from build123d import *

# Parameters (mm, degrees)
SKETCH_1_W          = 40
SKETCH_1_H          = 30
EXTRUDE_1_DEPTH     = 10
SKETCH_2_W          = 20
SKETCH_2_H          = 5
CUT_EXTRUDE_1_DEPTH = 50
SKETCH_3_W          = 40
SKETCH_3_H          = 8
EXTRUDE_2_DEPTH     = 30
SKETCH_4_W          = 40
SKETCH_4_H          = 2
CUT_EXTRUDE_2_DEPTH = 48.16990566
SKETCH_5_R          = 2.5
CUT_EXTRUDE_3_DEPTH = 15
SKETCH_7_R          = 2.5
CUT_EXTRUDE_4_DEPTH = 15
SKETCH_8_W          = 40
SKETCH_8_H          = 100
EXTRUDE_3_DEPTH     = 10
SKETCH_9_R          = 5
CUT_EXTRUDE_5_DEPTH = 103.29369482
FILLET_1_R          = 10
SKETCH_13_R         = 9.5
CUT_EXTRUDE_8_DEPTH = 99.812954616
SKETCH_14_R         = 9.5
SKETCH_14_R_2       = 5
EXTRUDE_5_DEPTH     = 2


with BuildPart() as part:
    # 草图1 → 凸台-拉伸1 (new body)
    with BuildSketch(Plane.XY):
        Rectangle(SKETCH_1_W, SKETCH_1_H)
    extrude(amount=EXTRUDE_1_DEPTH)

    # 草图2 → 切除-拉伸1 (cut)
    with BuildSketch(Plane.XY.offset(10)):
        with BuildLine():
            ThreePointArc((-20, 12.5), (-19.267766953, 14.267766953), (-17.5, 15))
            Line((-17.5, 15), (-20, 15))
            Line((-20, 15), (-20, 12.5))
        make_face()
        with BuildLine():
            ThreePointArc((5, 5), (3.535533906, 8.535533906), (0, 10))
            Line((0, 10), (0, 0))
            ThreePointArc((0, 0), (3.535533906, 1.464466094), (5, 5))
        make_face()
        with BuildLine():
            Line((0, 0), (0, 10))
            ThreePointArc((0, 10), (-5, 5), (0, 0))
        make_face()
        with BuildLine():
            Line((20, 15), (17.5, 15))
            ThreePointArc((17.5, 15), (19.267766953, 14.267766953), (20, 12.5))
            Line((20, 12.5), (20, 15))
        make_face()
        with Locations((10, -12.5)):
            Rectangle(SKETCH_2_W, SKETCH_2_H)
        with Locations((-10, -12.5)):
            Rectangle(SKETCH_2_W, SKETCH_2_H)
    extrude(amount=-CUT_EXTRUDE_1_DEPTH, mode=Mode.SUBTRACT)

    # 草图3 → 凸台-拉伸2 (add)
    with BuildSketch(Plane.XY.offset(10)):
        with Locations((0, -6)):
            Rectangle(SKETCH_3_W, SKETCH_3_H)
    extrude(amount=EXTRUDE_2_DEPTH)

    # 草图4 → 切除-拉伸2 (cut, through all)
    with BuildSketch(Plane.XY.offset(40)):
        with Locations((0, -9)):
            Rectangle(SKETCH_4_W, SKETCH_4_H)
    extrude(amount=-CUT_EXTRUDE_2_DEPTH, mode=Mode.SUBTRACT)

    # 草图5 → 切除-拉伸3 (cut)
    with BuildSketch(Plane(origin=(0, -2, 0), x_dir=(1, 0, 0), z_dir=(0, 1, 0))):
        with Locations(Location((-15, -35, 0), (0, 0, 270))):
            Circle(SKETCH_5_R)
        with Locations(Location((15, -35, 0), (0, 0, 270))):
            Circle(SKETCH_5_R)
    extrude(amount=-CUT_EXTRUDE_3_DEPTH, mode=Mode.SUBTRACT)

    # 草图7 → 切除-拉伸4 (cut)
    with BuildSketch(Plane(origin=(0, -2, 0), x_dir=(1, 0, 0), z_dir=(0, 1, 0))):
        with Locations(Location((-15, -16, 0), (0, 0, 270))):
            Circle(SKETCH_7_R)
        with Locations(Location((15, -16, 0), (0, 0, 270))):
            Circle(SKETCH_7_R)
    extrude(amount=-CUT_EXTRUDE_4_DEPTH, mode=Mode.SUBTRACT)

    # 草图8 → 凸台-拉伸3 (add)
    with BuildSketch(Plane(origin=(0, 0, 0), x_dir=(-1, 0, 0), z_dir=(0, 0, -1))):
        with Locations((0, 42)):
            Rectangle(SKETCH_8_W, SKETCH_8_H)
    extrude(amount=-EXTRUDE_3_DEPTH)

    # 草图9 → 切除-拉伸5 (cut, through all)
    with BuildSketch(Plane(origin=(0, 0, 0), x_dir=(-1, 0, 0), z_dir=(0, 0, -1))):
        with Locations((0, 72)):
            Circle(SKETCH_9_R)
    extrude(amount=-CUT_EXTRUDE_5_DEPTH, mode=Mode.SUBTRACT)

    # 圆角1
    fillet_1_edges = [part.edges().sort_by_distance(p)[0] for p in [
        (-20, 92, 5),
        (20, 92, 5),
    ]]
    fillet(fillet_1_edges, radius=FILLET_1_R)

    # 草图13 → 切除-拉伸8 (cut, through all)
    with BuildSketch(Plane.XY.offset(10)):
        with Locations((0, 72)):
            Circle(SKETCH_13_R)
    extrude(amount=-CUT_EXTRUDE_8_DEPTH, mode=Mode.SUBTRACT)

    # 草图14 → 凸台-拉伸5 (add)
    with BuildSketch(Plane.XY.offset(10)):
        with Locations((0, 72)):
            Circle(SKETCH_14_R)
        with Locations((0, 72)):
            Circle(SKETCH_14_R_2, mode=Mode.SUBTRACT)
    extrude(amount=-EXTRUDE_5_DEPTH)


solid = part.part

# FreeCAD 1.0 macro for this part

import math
import FreeCAD as App
import Part
import Sketcher


def edges_at(feature, points):
    """Names of the edges that pass closest to the given points."""
    edges = feature.Shape.Edges
    near = lambda p: min(range(len(edges)), key=lambda i: edges[i].distToShape(Part.Vertex(*p))[0])
    return sorted({f"Edge{near(p) + 1}" for p in points})

doc = App.newDocument("Part")
params = doc.addObject("Spreadsheet::Sheet", "Params")
for row, (alias, value) in enumerate([
    ("sketch1_width", "40 mm"),
    ("sketch1_height", "30 mm"),
    ("pad1_length", "10 mm"),
    ("sketch2_radius", "5 mm"),
    ("sketch2_radius2", "2.5 mm"),
    ("sketch2_width", "40 mm"),
    ("sketch2_height", "5 mm"),
    ("pocket1_length", "50 mm"),
    ("sketch3_width", "40 mm"),
    ("sketch3_height", "8 mm"),
    ("pad2_length", "30 mm"),
    ("sketch4_width", "40 mm"),
    ("sketch4_height", "2 mm"),
    ("sketch5_diameter", "5 mm"),
    ("pocket3_length", "15 mm"),
    ("sketch6_diameter", "5 mm"),
    ("pocket4_length", "15 mm"),
    ("sketch7_width", "40 mm"),
    ("sketch7_height", "100 mm"),
    ("pad3_length", "10 mm"),
    ("sketch8_diameter", "10 mm"),
    ("fillet_radius", "10 mm"),
    ("sketch9_diameter", "19 mm"),
    ("sketch10_diameter", "19 mm"),
    ("sketch10_diameter2", "10 mm"),
    ("pad4_length", "2 mm"),
], start=1):
    params.set(f"A{row}", alias)
    params.set(f"B{row}", "=" + value)
    params.setAlias(f"B{row}", alias)

body = doc.addObject("PartDesign::Body", "Body")

# Sketch on XY plane
sketch1 = body.newObject("Sketcher::SketchObject", "Sketch")
sketch1.AttachmentSupport = (doc.getObject("XY_Plane"), [""])
sketch1.MapMode = "FlatFace"
sketch1.addGeometry([
    Part.LineSegment(App.Vector(-20, 15, 0), App.Vector(-20, -15, 0)),
    Part.LineSegment(App.Vector(-20, -15, 0), App.Vector(20, -15, 0)),
    Part.LineSegment(App.Vector(20, -15, 0), App.Vector(20, 15, 0)),
    Part.LineSegment(App.Vector(20, 15, 0), App.Vector(-20, 15, 0)),
], False)
sketch1.addConstraint([
    Sketcher.Constraint("Coincident", 0, 2, 1, 1),
    Sketcher.Constraint("Coincident", 1, 2, 2, 1),
    Sketcher.Constraint("Coincident", 2, 2, 3, 1),
    Sketcher.Constraint("Coincident", 3, 2, 0, 1),
    Sketcher.Constraint("Vertical", 0),
    Sketcher.Constraint("Horizontal", 1),
    Sketcher.Constraint("Vertical", 2),
    Sketcher.Constraint("Horizontal", 3),
    Sketcher.Constraint("Symmetric", 0, 2, 2, 2, -1, 1),
    Sketcher.Constraint("DistanceX", 1, 1, 1, 2, 40.0),
    Sketcher.Constraint("DistanceY", 0, 2, 0, 1, 30.0),
])
sketch1.setExpression("Constraints[9]", "Params.sketch1_width")
sketch1.setExpression("Constraints[10]", "Params.sketch1_height")
pad1 = body.newObject("PartDesign::Pad", "Pad")
pad1.Profile = sketch1
pad1.setExpression("Length", "Params.pad1_length")

# Sketch on XY plane
sketch2 = body.newObject("Sketcher::SketchObject", "Sketch001")
sketch2.AttachmentSupport = (doc.getObject("XY_Plane"), [""])
sketch2.MapMode = "FlatFace"
sketch2.AttachmentOffset = App.Placement(App.Vector(0, 0, 10), App.Rotation())
sketch2.addGeometry([
    Part.ArcOfCircle(Part.Circle(App.Vector(-17.5, 12.5, 0), App.Vector(0, 0, 1), 2.5), math.radians(90), math.radians(180)),  # 0
    Part.LineSegment(App.Vector(-17.5, 15, 0), App.Vector(-20, 15, 0)),  # 1
    Part.LineSegment(App.Vector(-20, 15, 0), App.Vector(-20, 12.5, 0)),  # 2
    Part.ArcOfCircle(Part.Circle(App.Vector(0, 5, 0), App.Vector(0, 0, 1), 5), math.radians(0), math.radians(90)),  # 3
    Part.ArcOfCircle(Part.Circle(App.Vector(0, 5, 0), App.Vector(0, 0, 1), 5), math.radians(90), math.radians(270)),  # 4
    Part.ArcOfCircle(Part.Circle(App.Vector(0, 5, 0), App.Vector(0, 0, 1), 5), math.radians(-90), math.radians(0)),  # 5
    Part.LineSegment(App.Vector(20, 15, 0), App.Vector(17.5, 15, 0)),  # 6
    Part.ArcOfCircle(Part.Circle(App.Vector(17.5, 12.5, 0), App.Vector(0, 0, 1), 2.5), math.radians(0), math.radians(90)),  # 7
    Part.LineSegment(App.Vector(20, 12.5, 0), App.Vector(20, 15, 0)),  # 8
    Part.LineSegment(App.Vector(20, -15, 0), App.Vector(20, -10, 0)),  # 9
    Part.LineSegment(App.Vector(20, -10, 0), App.Vector(-20, -10, 0)),  # 10
    Part.LineSegment(App.Vector(-20, -10, 0), App.Vector(-20, -15, 0)),  # 11
    Part.LineSegment(App.Vector(-20, -15, 0), App.Vector(20, -15, 0)),  # 12
], False)
sketch2.addConstraint([
    Sketcher.Constraint("Tangent", 0, 1, 1, 1),
    Sketcher.Constraint("Coincident", 1, 2, 2, 1),
    Sketcher.Constraint("Tangent", 2, 2, 0, 2),
    Sketcher.Constraint("Tangent", 3, 2, 4, 1),
    Sketcher.Constraint("Tangent", 4, 2, 5, 1),
    Sketcher.Constraint("Tangent", 5, 2, 3, 1),
    Sketcher.Constraint("Tangent", 6, 2, 7, 2),
    Sketcher.Constraint("Tangent", 7, 1, 8, 1),
    Sketcher.Constraint("Coincident", 8, 2, 6, 1),
    Sketcher.Constraint("Coincident", 9, 2, 10, 1),
    Sketcher.Constraint("Coincident", 10, 2, 11, 1),
    Sketcher.Constraint("Coincident", 11, 2, 12, 1),
    Sketcher.Constraint("Coincident", 12, 2, 9, 1),
    Sketcher.Constraint("Horizontal", 1),
    Sketcher.Constraint("Vertical", 2),
    Sketcher.Constraint("Horizontal", 6),
    Sketcher.Constraint("Vertical", 8),
    Sketcher.Constraint("Vertical", 9),
    Sketcher.Constraint("Horizontal", 10),
    Sketcher.Constraint("Vertical", 11),
    Sketcher.Constraint("Horizontal", 12),
    Sketcher.Constraint("Coincident", 4, 2, -1, 1),
    Sketcher.Constraint("Equal", 0, 7),
    Sketcher.Constraint("Symmetric", 8, 2, 11, 2, -1, 1),
    Sketcher.Constraint("Symmetric", 1, 2, 12, 2, -1, 1),
    Sketcher.Constraint("PointOnObject", 3, 3, -2),
    Sketcher.Constraint("PointOnObject", 3, 2, -2),
    Sketcher.Constraint("Horizontal", 4, 3, 5, 2),
    Sketcher.Constraint("Vertical", 8, 2, 9, 2),
    Sketcher.Constraint("Radius", 3, 5.0),
    Sketcher.Constraint("Radius", 0, 2.5),
    Sketcher.Constraint("DistanceX", 10, 2, 10, 1, 40.0),
    Sketcher.Constraint("DistanceY", 9, 1, 9, 2, 5.0),
    Sketcher.Constraint("DistanceY", -1, 1, 0, 1, 15.0),
])
sketch2.setExpression("Constraints[29]", "Params.sketch2_radius")
sketch2.setExpression("Constraints[30]", "Params.sketch2_radius2")
sketch2.setExpression("Constraints[31]", "Params.sketch2_width")
sketch2.setExpression("Constraints[32]", "Params.sketch2_height")
pocket1 = body.newObject("PartDesign::Pocket", "Pocket")
pocket1.Profile = sketch2
pocket1.setExpression("Length", "Params.pocket1_length")

# Sketch on XY plane
sketch3 = body.newObject("Sketcher::SketchObject", "Sketch002")
sketch3.AttachmentSupport = (doc.getObject("XY_Plane"), [""])
sketch3.MapMode = "FlatFace"
sketch3.AttachmentOffset = App.Placement(App.Vector(0, 0, 10), App.Rotation())
sketch3.addGeometry([
    Part.LineSegment(App.Vector(-20, -2, 0), App.Vector(-20, -10, 0)),
    Part.LineSegment(App.Vector(-20, -10, 0), App.Vector(20, -10, 0)),
    Part.LineSegment(App.Vector(20, -10, 0), App.Vector(20, -2, 0)),
    Part.LineSegment(App.Vector(20, -2, 0), App.Vector(-20, -2, 0)),
], False)
sketch3.addConstraint([
    Sketcher.Constraint("Coincident", 0, 2, 1, 1),
    Sketcher.Constraint("Coincident", 1, 2, 2, 1),
    Sketcher.Constraint("Coincident", 2, 2, 3, 1),
    Sketcher.Constraint("Coincident", 3, 2, 0, 1),
    Sketcher.Constraint("Vertical", 0),
    Sketcher.Constraint("Horizontal", 1),
    Sketcher.Constraint("Vertical", 2),
    Sketcher.Constraint("Horizontal", 3),
    Sketcher.Constraint("DistanceX", 1, 1, 1, 2, 40.0),
    Sketcher.Constraint("DistanceY", 0, 2, 0, 1, 8.0),
    Sketcher.Constraint("DistanceX", 0, 2, -1, 1, 20.0),
    Sketcher.Constraint("DistanceY", 0, 2, -1, 1, 10.0),
])
sketch3.setExpression("Constraints[8]", "Params.sketch3_width")
sketch3.setExpression("Constraints[9]", "Params.sketch3_height")
pad2 = body.newObject("PartDesign::Pad", "Pad001")
pad2.Profile = sketch3
pad2.setExpression("Length", "Params.pad2_length")

# Sketch on XY plane
sketch4 = body.newObject("Sketcher::SketchObject", "Sketch003")
sketch4.AttachmentSupport = (doc.getObject("XY_Plane"), [""])
sketch4.MapMode = "FlatFace"
sketch4.AttachmentOffset = App.Placement(App.Vector(0, 0, 40), App.Rotation())
sketch4.addGeometry([
    Part.LineSegment(App.Vector(-20, -8, 0), App.Vector(-20, -10, 0)),
    Part.LineSegment(App.Vector(-20, -10, 0), App.Vector(20, -10, 0)),
    Part.LineSegment(App.Vector(20, -10, 0), App.Vector(20, -8, 0)),
    Part.LineSegment(App.Vector(20, -8, 0), App.Vector(-20, -8, 0)),
], False)
sketch4.addConstraint([
    Sketcher.Constraint("Coincident", 0, 2, 1, 1),
    Sketcher.Constraint("Coincident", 1, 2, 2, 1),
    Sketcher.Constraint("Coincident", 2, 2, 3, 1),
    Sketcher.Constraint("Coincident", 3, 2, 0, 1),
    Sketcher.Constraint("Vertical", 0),
    Sketcher.Constraint("Horizontal", 1),
    Sketcher.Constraint("Vertical", 2),
    Sketcher.Constraint("Horizontal", 3),
    Sketcher.Constraint("DistanceX", 1, 1, 1, 2, 40.0),
    Sketcher.Constraint("DistanceY", 0, 2, 0, 1, 2.0),
    Sketcher.Constraint("DistanceX", 0, 2, -1, 1, 20.0),
    Sketcher.Constraint("DistanceY", 0, 2, -1, 1, 10.0),
])
sketch4.setExpression("Constraints[8]", "Params.sketch4_width")
sketch4.setExpression("Constraints[9]", "Params.sketch4_height")
pocket2 = body.newObject("PartDesign::Pocket", "Pocket001")
pocket2.Profile = sketch4
pocket2.Type = "ThroughAll"

# Sketch on XZ plane
sketch5 = body.newObject("Sketcher::SketchObject", "Sketch004")
sketch5.AttachmentSupport = (doc.getObject("XZ_Plane"), [""])
sketch5.MapMode = "FlatFace"
sketch5.AttachmentOffset = App.Placement(App.Vector(0, 0, 2), App.Rotation())
sketch5.addGeometry([
    Part.Circle(App.Vector(-15, 35, 0), App.Vector(0, 0, 1), 2.5),
    Part.Circle(App.Vector(15, 35, 0), App.Vector(0, 0, 1), 2.5),
], False)
sketch5.addConstraint([
    Sketcher.Constraint("Equal", 0, 1),
    Sketcher.Constraint("Symmetric", 0, 3, 1, 3, -2),
    Sketcher.Constraint("Diameter", 0, 5.0),
    Sketcher.Constraint("DistanceX", 0, 3, -1, 1, 15.0),
    Sketcher.Constraint("DistanceY", -1, 1, 0, 3, 35.0),
])
sketch5.setExpression("Constraints[2]", "Params.sketch5_diameter")
pocket3 = body.newObject("PartDesign::Pocket", "Pocket002")
pocket3.Profile = sketch5
pocket3.setExpression("Length", "Params.pocket3_length")
pocket3.Reversed = True

# Sketch on XZ plane
sketch6 = body.newObject("Sketcher::SketchObject", "Sketch005")
sketch6.AttachmentSupport = (doc.getObject("XZ_Plane"), [""])
sketch6.MapMode = "FlatFace"
sketch6.AttachmentOffset = App.Placement(App.Vector(0, 0, 2), App.Rotation())
sketch6.addGeometry([
    Part.Circle(App.Vector(-15, 16, 0), App.Vector(0, 0, 1), 2.5),
    Part.Circle(App.Vector(15, 16, 0), App.Vector(0, 0, 1), 2.5),
], False)
sketch6.addConstraint([
    Sketcher.Constraint("Equal", 0, 1),
    Sketcher.Constraint("Symmetric", 0, 3, 1, 3, -2),
    Sketcher.Constraint("Diameter", 0, 5.0),
    Sketcher.Constraint("DistanceX", 0, 3, -1, 1, 15.0),
    Sketcher.Constraint("DistanceY", -1, 1, 0, 3, 16.0),
])
sketch6.setExpression("Constraints[2]", "Params.sketch6_diameter")
pocket4 = body.newObject("PartDesign::Pocket", "Pocket003")
pocket4.Profile = sketch6
pocket4.setExpression("Length", "Params.pocket4_length")
pocket4.Reversed = True

# Sketch on XY plane
sketch7 = body.newObject("Sketcher::SketchObject", "Sketch006")
sketch7.AttachmentSupport = (doc.getObject("XY_Plane"), [""])
sketch7.MapMode = "FlatFace"
sketch7.addGeometry([
    Part.LineSegment(App.Vector(20, 92, 0), App.Vector(20, -8, 0)),
    Part.LineSegment(App.Vector(20, -8, 0), App.Vector(-20, -8, 0)),
    Part.LineSegment(App.Vector(-20, -8, 0), App.Vector(-20, 92, 0)),
    Part.LineSegment(App.Vector(-20, 92, 0), App.Vector(20, 92, 0)),
], False)
sketch7.addConstraint([
    Sketcher.Constraint("Coincident", 0, 2, 1, 1),
    Sketcher.Constraint("Coincident", 1, 2, 2, 1),
    Sketcher.Constraint("Coincident", 2, 2, 3, 1),
    Sketcher.Constraint("Coincident", 3, 2, 0, 1),
    Sketcher.Constraint("Vertical", 0),
    Sketcher.Constraint("Horizontal", 1),
    Sketcher.Constraint("Vertical", 2),
    Sketcher.Constraint("Horizontal", 3),
    Sketcher.Constraint("DistanceX", 1, 2, 1, 1, 40.0),
    Sketcher.Constraint("DistanceY", 0, 2, 0, 1, 100.0),
    Sketcher.Constraint("DistanceX", -1, 1, 0, 2, 20.0),
    Sketcher.Constraint("DistanceY", 0, 2, -1, 1, 8.0),
])
sketch7.setExpression("Constraints[8]", "Params.sketch7_width")
sketch7.setExpression("Constraints[9]", "Params.sketch7_height")
pad3 = body.newObject("PartDesign::Pad", "Pad002")
pad3.Profile = sketch7
pad3.setExpression("Length", "Params.pad3_length")

# Sketch on XY plane
sketch8 = body.newObject("Sketcher::SketchObject", "Sketch007")
sketch8.AttachmentSupport = (doc.getObject("XY_Plane"), [""])
sketch8.MapMode = "FlatFace"
sketch8.addGeometry(Part.Circle(App.Vector(0, 72, 0), App.Vector(0, 0, 1), 5), False)
sketch8.addConstraint([
    Sketcher.Constraint("PointOnObject", 0, 3, -2),
    Sketcher.Constraint("Diameter", 0, 10.0),
    Sketcher.Constraint("DistanceY", -1, 1, 0, 3, 72.0),
])
sketch8.setExpression("Constraints[1]", "Params.sketch8_diameter")
pocket5 = body.newObject("PartDesign::Pocket", "Pocket004")
pocket5.Profile = sketch8
pocket5.Type = "ThroughAll"
pocket5.Reversed = True
doc.recompute()

fillet = body.newObject("PartDesign::Fillet", "Fillet")
fillet.Base = (pocket5, edges_at(pocket5, [(-20, 92, 5), (20, 92, 5)]))
fillet.setExpression("Radius", "Params.fillet_radius")

# Sketch on XY plane
sketch9 = body.newObject("Sketcher::SketchObject", "Sketch008")
sketch9.AttachmentSupport = (doc.getObject("XY_Plane"), [""])
sketch9.MapMode = "FlatFace"
sketch9.AttachmentOffset = App.Placement(App.Vector(0, 0, 10), App.Rotation())
sketch9.addGeometry(Part.Circle(App.Vector(0, 72, 0), App.Vector(0, 0, 1), 10), False)
sketch9.addConstraint([
    Sketcher.Constraint("PointOnObject", 0, 3, -2),
    Sketcher.Constraint("Diameter", 0, 19.0),
    Sketcher.Constraint("DistanceY", -1, 1, 0, 3, 72.0),
])
sketch9.setExpression("Constraints[1]", "Params.sketch9_diameter")
pocket6 = body.newObject("PartDesign::Pocket", "Pocket005")
pocket6.Profile = sketch9
pocket6.Type = "ThroughAll"

# Sketch on XY plane
sketch10 = body.newObject("Sketcher::SketchObject", "Sketch009")
sketch10.AttachmentSupport = (doc.getObject("XY_Plane"), [""])
sketch10.MapMode = "FlatFace"
sketch10.AttachmentOffset = App.Placement(App.Vector(0, 0, 10), App.Rotation())
sketch10.addGeometry([
    Part.Circle(App.Vector(0, 72, 0), App.Vector(0, 0, 1), 10),
    Part.Circle(App.Vector(0, 72, 0), App.Vector(0, 0, 1), 5),
], False)
sketch10.addConstraint([
    Sketcher.Constraint("Coincident", 1, 3, 0, 3),
    Sketcher.Constraint("PointOnObject", 0, 3, -2),
    Sketcher.Constraint("Diameter", 0, 19.0),
    Sketcher.Constraint("Diameter", 1, 10.0),
    Sketcher.Constraint("DistanceY", -1, 1, 0, 3, 72.0),
])
sketch10.setExpression("Constraints[2]", "Params.sketch10_diameter")
sketch10.setExpression("Constraints[3]", "Params.sketch10_diameter2")
pad4 = body.newObject("PartDesign::Pad", "Pad003")
pad4.Profile = sketch10
pad4.setExpression("Length", "Params.pad4_length")
pad4.Reversed = True

doc.recompute()
